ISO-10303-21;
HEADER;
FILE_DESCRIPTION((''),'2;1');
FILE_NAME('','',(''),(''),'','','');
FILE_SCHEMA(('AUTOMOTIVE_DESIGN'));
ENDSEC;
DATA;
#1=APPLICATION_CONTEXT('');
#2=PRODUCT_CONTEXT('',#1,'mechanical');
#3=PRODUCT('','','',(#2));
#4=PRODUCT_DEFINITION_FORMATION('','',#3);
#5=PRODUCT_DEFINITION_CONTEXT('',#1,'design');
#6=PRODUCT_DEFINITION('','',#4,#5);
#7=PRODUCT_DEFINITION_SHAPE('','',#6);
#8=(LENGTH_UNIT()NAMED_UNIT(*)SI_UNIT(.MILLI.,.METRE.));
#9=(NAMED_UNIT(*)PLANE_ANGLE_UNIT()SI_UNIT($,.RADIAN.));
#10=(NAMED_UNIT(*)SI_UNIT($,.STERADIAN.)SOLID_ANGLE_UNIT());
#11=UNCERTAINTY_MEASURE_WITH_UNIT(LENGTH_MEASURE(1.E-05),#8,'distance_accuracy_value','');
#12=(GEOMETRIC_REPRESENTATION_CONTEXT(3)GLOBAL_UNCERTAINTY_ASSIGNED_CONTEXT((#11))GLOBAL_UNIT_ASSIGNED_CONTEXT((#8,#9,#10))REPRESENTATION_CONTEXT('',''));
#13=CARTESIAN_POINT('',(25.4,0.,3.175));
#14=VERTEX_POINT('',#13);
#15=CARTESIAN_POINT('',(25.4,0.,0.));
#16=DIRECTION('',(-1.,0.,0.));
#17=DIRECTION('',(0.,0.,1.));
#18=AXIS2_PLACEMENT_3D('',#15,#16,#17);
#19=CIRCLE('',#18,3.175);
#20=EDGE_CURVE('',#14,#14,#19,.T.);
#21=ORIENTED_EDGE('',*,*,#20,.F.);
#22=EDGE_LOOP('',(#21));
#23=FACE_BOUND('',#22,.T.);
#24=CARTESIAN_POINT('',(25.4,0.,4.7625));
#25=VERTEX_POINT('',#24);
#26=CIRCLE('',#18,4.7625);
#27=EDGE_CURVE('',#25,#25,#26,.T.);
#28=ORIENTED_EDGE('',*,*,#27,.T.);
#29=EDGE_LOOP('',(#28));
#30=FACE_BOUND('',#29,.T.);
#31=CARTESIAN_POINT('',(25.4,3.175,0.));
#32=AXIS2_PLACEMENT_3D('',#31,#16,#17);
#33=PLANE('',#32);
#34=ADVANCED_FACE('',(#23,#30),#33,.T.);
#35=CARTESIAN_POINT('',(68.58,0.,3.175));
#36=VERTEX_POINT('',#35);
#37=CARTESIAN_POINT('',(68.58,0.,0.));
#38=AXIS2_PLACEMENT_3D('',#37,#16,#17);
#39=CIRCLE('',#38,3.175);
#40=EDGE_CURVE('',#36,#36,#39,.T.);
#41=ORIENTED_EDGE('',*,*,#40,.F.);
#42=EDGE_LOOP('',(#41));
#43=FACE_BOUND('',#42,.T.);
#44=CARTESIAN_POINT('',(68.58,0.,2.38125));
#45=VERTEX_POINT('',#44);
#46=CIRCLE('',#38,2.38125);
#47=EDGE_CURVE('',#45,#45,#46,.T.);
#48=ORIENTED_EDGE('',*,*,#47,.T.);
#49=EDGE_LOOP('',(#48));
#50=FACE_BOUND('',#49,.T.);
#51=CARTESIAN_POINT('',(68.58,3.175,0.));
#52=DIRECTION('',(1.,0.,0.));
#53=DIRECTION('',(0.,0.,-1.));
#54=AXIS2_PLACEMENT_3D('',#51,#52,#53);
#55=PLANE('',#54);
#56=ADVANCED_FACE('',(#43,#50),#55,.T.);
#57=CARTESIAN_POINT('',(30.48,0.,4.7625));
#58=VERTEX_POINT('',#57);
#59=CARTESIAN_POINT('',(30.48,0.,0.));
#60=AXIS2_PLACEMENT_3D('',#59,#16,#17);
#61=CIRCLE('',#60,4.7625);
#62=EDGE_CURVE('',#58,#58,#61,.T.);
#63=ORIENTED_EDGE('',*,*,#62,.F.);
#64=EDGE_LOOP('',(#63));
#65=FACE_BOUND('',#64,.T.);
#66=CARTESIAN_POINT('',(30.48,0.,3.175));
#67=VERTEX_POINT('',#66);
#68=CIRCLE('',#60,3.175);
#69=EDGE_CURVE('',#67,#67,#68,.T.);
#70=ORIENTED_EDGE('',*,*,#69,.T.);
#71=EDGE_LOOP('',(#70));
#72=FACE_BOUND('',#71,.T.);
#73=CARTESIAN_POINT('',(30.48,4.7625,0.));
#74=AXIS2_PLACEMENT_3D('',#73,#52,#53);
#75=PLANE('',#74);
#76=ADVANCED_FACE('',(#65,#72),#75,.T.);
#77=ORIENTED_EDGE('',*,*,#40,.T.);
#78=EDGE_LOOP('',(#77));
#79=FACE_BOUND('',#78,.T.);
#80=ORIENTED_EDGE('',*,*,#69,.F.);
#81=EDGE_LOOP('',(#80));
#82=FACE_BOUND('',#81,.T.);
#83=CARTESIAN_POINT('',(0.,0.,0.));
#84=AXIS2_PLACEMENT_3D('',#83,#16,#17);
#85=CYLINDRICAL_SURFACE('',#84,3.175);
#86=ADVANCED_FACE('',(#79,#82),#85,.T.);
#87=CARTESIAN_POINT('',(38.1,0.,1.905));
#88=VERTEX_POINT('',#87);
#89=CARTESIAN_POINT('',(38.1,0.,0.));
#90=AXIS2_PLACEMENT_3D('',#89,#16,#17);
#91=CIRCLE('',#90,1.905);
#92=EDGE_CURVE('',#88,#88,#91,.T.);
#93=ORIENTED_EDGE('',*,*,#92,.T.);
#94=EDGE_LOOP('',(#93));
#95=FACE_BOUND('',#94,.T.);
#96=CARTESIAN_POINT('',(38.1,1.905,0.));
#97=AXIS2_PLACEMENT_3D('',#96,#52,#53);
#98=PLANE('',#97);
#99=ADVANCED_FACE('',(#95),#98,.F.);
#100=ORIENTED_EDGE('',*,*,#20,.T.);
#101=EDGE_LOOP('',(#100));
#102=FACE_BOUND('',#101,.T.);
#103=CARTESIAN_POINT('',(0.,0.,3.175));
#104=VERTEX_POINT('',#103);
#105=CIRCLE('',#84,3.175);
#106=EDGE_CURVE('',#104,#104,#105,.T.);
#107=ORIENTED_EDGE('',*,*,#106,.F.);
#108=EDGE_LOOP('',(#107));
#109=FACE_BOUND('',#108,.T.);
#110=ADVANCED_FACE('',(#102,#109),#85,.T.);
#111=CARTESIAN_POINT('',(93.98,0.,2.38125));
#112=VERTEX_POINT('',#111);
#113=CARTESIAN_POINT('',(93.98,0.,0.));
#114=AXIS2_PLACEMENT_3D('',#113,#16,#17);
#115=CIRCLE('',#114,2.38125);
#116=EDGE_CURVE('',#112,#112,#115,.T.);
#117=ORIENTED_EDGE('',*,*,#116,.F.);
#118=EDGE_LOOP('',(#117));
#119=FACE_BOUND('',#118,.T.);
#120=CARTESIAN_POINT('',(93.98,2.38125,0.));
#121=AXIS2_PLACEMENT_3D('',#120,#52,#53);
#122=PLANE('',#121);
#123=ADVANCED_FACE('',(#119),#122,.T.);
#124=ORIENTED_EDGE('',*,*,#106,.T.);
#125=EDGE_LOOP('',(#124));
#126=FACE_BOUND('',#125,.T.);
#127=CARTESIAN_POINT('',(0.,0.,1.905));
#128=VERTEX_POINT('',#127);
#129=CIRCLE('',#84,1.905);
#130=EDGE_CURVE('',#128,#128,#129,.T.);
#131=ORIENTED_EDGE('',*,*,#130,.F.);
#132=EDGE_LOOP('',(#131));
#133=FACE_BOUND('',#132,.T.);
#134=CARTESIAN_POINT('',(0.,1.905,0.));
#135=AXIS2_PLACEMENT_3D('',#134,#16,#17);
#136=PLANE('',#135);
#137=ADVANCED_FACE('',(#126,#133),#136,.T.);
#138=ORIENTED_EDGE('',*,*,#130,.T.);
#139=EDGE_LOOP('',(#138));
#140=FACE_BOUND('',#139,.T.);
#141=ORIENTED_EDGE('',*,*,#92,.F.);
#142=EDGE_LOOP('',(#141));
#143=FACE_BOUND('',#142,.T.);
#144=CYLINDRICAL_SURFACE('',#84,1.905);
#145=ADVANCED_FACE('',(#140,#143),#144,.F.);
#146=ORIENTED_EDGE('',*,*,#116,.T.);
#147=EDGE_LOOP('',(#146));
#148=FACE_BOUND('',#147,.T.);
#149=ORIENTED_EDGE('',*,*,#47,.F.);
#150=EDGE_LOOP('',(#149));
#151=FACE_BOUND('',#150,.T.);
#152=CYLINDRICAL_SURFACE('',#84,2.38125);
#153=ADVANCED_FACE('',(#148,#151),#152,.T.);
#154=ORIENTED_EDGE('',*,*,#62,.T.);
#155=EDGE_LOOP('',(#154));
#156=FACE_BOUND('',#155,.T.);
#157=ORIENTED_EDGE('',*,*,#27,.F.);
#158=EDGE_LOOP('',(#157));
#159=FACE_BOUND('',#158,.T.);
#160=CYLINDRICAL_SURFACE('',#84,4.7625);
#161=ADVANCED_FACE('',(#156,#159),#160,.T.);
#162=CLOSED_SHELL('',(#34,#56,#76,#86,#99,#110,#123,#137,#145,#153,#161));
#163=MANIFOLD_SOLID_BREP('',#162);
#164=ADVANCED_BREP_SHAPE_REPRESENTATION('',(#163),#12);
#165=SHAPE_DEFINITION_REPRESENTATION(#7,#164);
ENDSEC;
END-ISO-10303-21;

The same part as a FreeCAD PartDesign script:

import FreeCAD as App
import Part
import Sketcher

V = App.Vector
Q = App.Units.Quantity

doc = App.newDocument("Part")
body = doc.addObject("PartDesign::Body", "Body")

# Sketch on XY plane
sketch1 = body.newObject("Sketcher::SketchObject", "Sketch")
sketch1.AttachmentSupport = (doc.getObject("XY_Plane"), [""])
sketch1.MapMode = "FlatFace"
sketch1.addGeometry([
    Part.LineSegment(V(0, 1.9, 0), V(38.1, 1.9, 0)),  # 0
    Part.LineSegment(V(38.1, 1.9, 0), V(38.1, 0, 0)),  # 1
    Part.LineSegment(V(38.1, 0, 0), V(94, 0, 0)),  # 2
    Part.LineSegment(V(94, 0, 0), V(94, 2.4, 0)),  # 3
    Part.LineSegment(V(94, 2.4, 0), V(68.6, 2.4, 0)),  # 4
    Part.LineSegment(V(68.6, 2.4, 0), V(68.6, 3.2, 0)),  # 5
    Part.LineSegment(V(68.6, 3.2, 0), V(30.5, 3.2, 0)),  # 6
    Part.LineSegment(V(30.5, 3.2, 0), V(30.5, 4.8, 0)),  # 7
    Part.LineSegment(V(30.5, 4.8, 0), V(25.4, 4.8, 0)),  # 8
    Part.LineSegment(V(25.4, 4.8, 0), V(25.4, 3.2, 0)),  # 9
    Part.LineSegment(V(25.4, 3.2, 0), V(0, 3.2, 0)),  # 10
    Part.LineSegment(V(0, 3.2, 0), V(0, 1.9, 0)),  # 11
], False)
sketch1.addConstraint([
    Sketcher.Constraint("Coincident", 0, 2, 1, 1),
    Sketcher.Constraint("Coincident", 1, 2, 2, 1),
    Sketcher.Constraint("Coincident", 2, 2, 3, 1),
    Sketcher.Constraint("Coincident", 3, 2, 4, 1),
    Sketcher.Constraint("Coincident", 4, 2, 5, 1),
    Sketcher.Constraint("Coincident", 5, 2, 6, 1),
    Sketcher.Constraint("Coincident", 6, 2, 7, 1),
    Sketcher.Constraint("Coincident", 7, 2, 8, 1),
    Sketcher.Constraint("Coincident", 8, 2, 9, 1),
    Sketcher.Constraint("Coincident", 9, 2, 10, 1),
    Sketcher.Constraint("Coincident", 10, 2, 11, 1),
    Sketcher.Constraint("Coincident", 11, 2, 0, 1),
    Sketcher.Constraint("Horizontal", 0),
    Sketcher.Constraint("Vertical", 1),
    Sketcher.Constraint("Horizontal", 2),
    Sketcher.Constraint("Vertical", 3),
    Sketcher.Constraint("Horizontal", 4),
    Sketcher.Constraint("Vertical", 5),
    Sketcher.Constraint("Horizontal", 6),
    Sketcher.Constraint("Vertical", 7),
    Sketcher.Constraint("Horizontal", 8),
    Sketcher.Constraint("Vertical", 9),
    Sketcher.Constraint("Horizontal", 10),
    Sketcher.Constraint("Vertical", 11),
    Sketcher.Constraint("PointOnObject", 1, 2, -1),
    Sketcher.Constraint("PointOnObject", 10, 2, -2),
    Sketcher.Constraint("Horizontal", 6, 2, 9, 2),
    Sketcher.Constraint("Equal", 0, 6),
    Sketcher.Constraint("Equal", 4, 10),
    Sketcher.Constraint("DistanceX", 4, 2, 4, 1, Q("1 in")),
    Sketcher.Constraint("DistanceX", 0, 1, 0, 2, Q("1.5 in")),
    Sketcher.Constraint("DistanceX", 2, 1, 2, 2, Q("2.2 in")),
    Sketcher.Constraint("DistanceY", 11, 2, 11, 1, Q("0.05 in")),
    Sketcher.Constraint("DistanceY", 1, 2, 1, 1, Q("0.075 in")),
    Sketcher.Constraint("DistanceY", 3, 1, 3, 2, Q("0.09375 in")),
    Sketcher.Constraint("DistanceY", 7, 1, 7, 2, Q("0.0625 in")),
])
revolution = body.newObject("PartDesign::Revolution", "Revolution")
revolution.Profile = sketch1
revolution.ReferenceAxis = (sketch1, ["H_Axis"])
revolution.Angle = 360

doc.recompute()
